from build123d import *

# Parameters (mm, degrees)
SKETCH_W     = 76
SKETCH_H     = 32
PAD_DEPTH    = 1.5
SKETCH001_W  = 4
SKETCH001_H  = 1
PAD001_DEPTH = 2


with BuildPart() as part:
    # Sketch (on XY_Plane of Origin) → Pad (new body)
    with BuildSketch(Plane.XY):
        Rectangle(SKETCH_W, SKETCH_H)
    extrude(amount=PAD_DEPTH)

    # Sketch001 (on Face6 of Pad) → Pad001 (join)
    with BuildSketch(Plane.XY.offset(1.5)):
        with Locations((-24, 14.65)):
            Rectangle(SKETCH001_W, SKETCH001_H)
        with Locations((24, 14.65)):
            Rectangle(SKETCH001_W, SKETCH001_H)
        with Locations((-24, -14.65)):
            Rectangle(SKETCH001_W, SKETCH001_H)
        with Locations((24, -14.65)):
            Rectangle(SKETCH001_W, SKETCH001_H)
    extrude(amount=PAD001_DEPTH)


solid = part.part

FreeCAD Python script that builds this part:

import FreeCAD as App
import Part
import Sketcher
from FreeCAD import Vector
Q = App.Units.Quantity

doc = App.newDocument("Part")
body = doc.addObject("PartDesign::Body", "Body")

# Sketch on XY plane
sketch1 = body.newObject("Sketcher::SketchObject", "Sketch")
sketch1.AttachmentSupport = (doc.getObject("XY_Plane"), [""])
sketch1.MapMode = "FlatFace"
sketch1.addGeometry([
    Part.LineSegment(Vector(-38, 16, 0), Vector(-38, -16, 0)),
    Part.LineSegment(Vector(-38, -16, 0), Vector(38, -16, 0)),
    Part.LineSegment(Vector(38, -16, 0), Vector(38, 16, 0)),
    Part.LineSegment(Vector(38, 16, 0), Vector(-38, 16, 0)),
], False)
sketch1.addConstraint([
    Sketcher.Constraint("Coincident", 0, 2, 1, 1),
    Sketcher.Constraint("Coincident", 1, 2, 2, 1),
    Sketcher.Constraint("Coincident", 2, 2, 3, 1),
    Sketcher.Constraint("Coincident", 3, 2, 0, 1),
    Sketcher.Constraint("Vertical", 0),
    Sketcher.Constraint("Horizontal", 1),
    Sketcher.Constraint("Vertical", 2),
    Sketcher.Constraint("Horizontal", 3),
    Sketcher.Constraint("Symmetric", 0, 2, 2, 2, -1, 1),
    Sketcher.Constraint("DistanceX", 1, 1, 1, 2, Q("76 mm")),
    Sketcher.Constraint("DistanceY", 0, 2, 0, 1, Q("32 mm")),
])
pad1 = body.newObject("PartDesign::Pad", "Pad")
pad1.Profile = sketch1
pad1.Length = 1.5

# Sketch on XY plane
sketch2 = body.newObject("Sketcher::SketchObject", "Sketch001")
sketch2.AttachmentSupport = (doc.getObject("XY_Plane"), [""])
sketch2.MapMode = "FlatFace"
sketch2.AttachmentOffset = App.Placement(Vector(0, 0, 1.5), App.Rotation())
sketch2.addGeometry([
    Part.LineSegment(Vector(-26, 15.2, 0), Vector(-26, 14.2, 0)),  # 0
    Part.LineSegment(Vector(-26, 14.2, 0), Vector(-22, 14.2, 0)),  # 1
    Part.LineSegment(Vector(-22, 14.2, 0), Vector(-22, 15.2, 0)),  # 2
    Part.LineSegment(Vector(-22, 15.2, 0), Vector(-26, 15.2, 0)),  # 3
    Part.LineSegment(Vector(22, 15.2, 0), Vector(22, 14.2, 0)),  # 4
    Part.LineSegment(Vector(22, 14.2, 0), Vector(26, 14.2, 0)),  # 5
    Part.LineSegment(Vector(26, 14.2, 0), Vector(26, 15.2, 0)),  # 6
    Part.LineSegment(Vector(26, 15.2, 0), Vector(22, 15.2, 0)),  # 7
    Part.LineSegment(Vector(-26, -14.2, 0), Vector(-26, -15.2, 0)),  # 8
    Part.LineSegment(Vector(-26, -15.2, 0), Vector(-22, -15.2, 0)),  # 9
    Part.LineSegment(Vector(-22, -15.2, 0), Vector(-22, -14.2, 0)),  # 10
    Part.LineSegment(Vector(-22, -14.2, 0), Vector(-26, -14.2, 0)),  # 11
    Part.LineSegment(Vector(22, -14.2, 0), Vector(22, -15.2, 0)),  # 12
    Part.LineSegment(Vector(22, -15.2, 0), Vector(26, -15.2, 0)),  # 13
    Part.LineSegment(Vector(26, -15.2, 0), Vector(26, -14.2, 0)),  # 14
    Part.LineSegment(Vector(26, -14.2, 0), Vector(22, -14.2, 0)),  # 15
], False)
sketch2.addConstraint([
    Sketcher.Constraint("Coincident", 0, 2, 1, 1),
    Sketcher.Constraint("Coincident", 1, 2, 2, 1),
    Sketcher.Constraint("Coincident", 2, 2, 3, 1),
    Sketcher.Constraint("Coincident", 3, 2, 0, 1),
    Sketcher.Constraint("Coincident", 4, 2, 5, 1),
    Sketcher.Constraint("Coincident", 5, 2, 6, 1),
    Sketcher.Constraint("Coincident", 6, 2, 7, 1),
    Sketcher.Constraint("Coincident", 7, 2, 4, 1),
    Sketcher.Constraint("Coincident", 8, 2, 9, 1),
    Sketcher.Constraint("Coincident", 9, 2, 10, 1),
    Sketcher.Constraint("Coincident", 10, 2, 11, 1),
    Sketcher.Constraint("Coincident", 11, 2, 8, 1),
    Sketcher.Constraint("Coincident", 12, 2, 13, 1),
    Sketcher.Constraint("Coincident", 13, 2, 14, 1),
    Sketcher.Constraint("Coincident", 14, 2, 15, 1),
    Sketcher.Constraint("Coincident", 15, 2, 12, 1),
    Sketcher.Constraint("Vertical", 0),
    Sketcher.Constraint("Horizontal", 1),
    Sketcher.Constraint("Vertical", 2),
    Sketcher.Constraint("Horizontal", 3),
    Sketcher.Constraint("Vertical", 4),
    Sketcher.Constraint("Horizontal", 5),
    Sketcher.Constraint("Vertical", 6),
    Sketcher.Constraint("Horizontal", 7),
    Sketcher.Constraint("Vertical", 8),
    Sketcher.Constraint("Horizontal", 9),
    Sketcher.Constraint("Vertical", 10),
    Sketcher.Constraint("Horizontal", 11),
    Sketcher.Constraint("Vertical", 12),
    Sketcher.Constraint("Horizontal", 13),
    Sketcher.Constraint("Vertical", 14),
    Sketcher.Constraint("Horizontal", 15),
    Sketcher.Constraint("Symmetric", 6, 2, 8, 2, -1, 1),
    Sketcher.Constraint("Symmetric", 4, 2, 10, 2, -1, 1),
    Sketcher.Constraint("Symmetric", 2, 2, 12, 2, -1, 1),
    Sketcher.Constraint("Symmetric", 0, 2, 14, 2, -1, 1),
    Sketcher.Constraint("Symmetric", 1, 2, 4, 2, -2),
    Sketcher.Constraint("Symmetric", 3, 2, 6, 2, -2),
    Sketcher.Constraint("DistanceX", 1, 1, 1, 2, Q("4 mm")),
    Sketcher.Constraint("DistanceY", 0, 2, 0, 1, Q("1 mm")),
    Sketcher.Constraint("DistanceX", 0, 2, -1, 1, Q("26 mm")),
    Sketcher.Constraint("DistanceY", 8, 2, 0, 2, Q("29.3 mm")),
])
pad2 = body.newObject("PartDesign::Pad", "Pad001")
pad2.Profile = sketch2
pad2.Length = 2

doc.recompute()
